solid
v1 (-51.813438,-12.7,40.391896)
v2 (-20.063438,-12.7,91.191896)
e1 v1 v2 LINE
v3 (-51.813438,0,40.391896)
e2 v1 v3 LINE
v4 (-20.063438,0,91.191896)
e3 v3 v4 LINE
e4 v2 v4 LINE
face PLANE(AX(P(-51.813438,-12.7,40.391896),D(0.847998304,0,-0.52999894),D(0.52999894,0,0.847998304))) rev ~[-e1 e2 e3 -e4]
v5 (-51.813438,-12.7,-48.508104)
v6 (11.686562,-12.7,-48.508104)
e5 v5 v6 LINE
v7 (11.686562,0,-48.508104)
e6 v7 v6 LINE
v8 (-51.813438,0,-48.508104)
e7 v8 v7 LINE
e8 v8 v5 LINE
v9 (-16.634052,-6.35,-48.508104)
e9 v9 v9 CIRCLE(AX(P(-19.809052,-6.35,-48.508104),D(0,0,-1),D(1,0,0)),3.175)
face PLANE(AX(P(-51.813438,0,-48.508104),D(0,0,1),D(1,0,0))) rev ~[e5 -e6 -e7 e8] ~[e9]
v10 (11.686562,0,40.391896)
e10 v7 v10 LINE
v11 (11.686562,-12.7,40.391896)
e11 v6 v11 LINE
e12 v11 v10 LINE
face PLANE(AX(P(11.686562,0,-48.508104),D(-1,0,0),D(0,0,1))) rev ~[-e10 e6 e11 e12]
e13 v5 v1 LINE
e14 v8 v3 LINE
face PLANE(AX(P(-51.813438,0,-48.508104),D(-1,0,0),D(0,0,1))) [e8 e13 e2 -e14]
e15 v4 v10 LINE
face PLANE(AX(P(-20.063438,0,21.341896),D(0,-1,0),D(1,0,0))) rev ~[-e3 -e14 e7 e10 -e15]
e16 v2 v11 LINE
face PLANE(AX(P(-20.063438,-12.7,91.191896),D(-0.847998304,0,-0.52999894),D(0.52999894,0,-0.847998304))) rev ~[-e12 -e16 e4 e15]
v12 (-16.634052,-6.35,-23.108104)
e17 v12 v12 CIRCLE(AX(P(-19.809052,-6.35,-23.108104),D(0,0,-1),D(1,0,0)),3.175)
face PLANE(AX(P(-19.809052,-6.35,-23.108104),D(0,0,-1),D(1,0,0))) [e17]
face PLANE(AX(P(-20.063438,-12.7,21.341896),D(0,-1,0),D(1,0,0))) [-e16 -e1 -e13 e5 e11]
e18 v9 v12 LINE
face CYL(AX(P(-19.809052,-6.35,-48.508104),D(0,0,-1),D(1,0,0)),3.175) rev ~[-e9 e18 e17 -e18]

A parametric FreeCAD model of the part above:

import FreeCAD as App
import Part
import Sketcher

V = App.Vector
Q = App.Units.Quantity


def add_polygon(sketch, points):
    """Adds a closed chain of lines whose ends are joined by coincident constraints."""
    first, n = sketch.GeometryCount, len(points)
    for a, b in zip(points, points[1:] + points[:1]):
        sketch.addGeometry(Part.LineSegment(App.Vector(*a, 0), App.Vector(*b, 0)), False)
    for i in range(n):
        sketch.addConstraint(Sketcher.Constraint("Coincident", first + i, 2, first + (i + 1) % n, 1))

doc = App.newDocument("Part")
body = doc.addObject("PartDesign::Body", "Body")

# Sketch on XZ plane
sketch1 = doc.addObject("Sketcher::SketchObject", "Sketch")
body.addObject(sketch1)
sketch1.AttachmentSupport = (doc.XZ_Plane, [""])
sketch1.MapMode = "FlatFace"
add_polygon(sketch1, [(-51.813438, 91.191896), (-51.813438, -48.508104), (11.686562, -48.508104), (11.686562, 91.191896)])  # lines 0-3
sketch1.addConstraint([
    Sketcher.Constraint("Vertical", 0),
    Sketcher.Constraint("Horizontal", 1),
    Sketcher.Constraint("Vertical", 2),
    Sketcher.Constraint("Horizontal", 3),
    Sketcher.Constraint("DistanceX", 1, 1, 1, 2, Q("2.5 in")),
    Sketcher.Constraint("DistanceY", 0, 2, 0, 1, Q("5.5 in")),
    Sketcher.Constraint("DistanceX", 0, 2, -1, 1, Q("51.813438 mm")),
    Sketcher.Constraint("DistanceY", 0, 2, -1, 1, Q("48.508104 mm")),
])
pad1 = doc.addObject("PartDesign::Pad", "Pad")
body.addObject(pad1)
pad1.Profile = sketch1
pad1.Length = Q("0.5 in")

# Sketch on XZ plane
sketch2 = doc.addObject("Sketcher::SketchObject", "Sketch001")
body.addObject(sketch2)
sketch2.AttachmentSupport = (doc.XZ_Plane, [""])
sketch2.MapMode = "FlatFace"
sketch2.AttachmentOffset = App.Placement(V(0, 0, 0.5 * 25.4), App.Rotation())
add_polygon(sketch2, [(-51.813438, 40.391896), (-20.063438, 91.191896), (-51.813438, 91.191896)])  # lines 0-2
add_polygon(sketch2, [(11.686562, 91.191896), (-20.063438, 91.191896), (11.686562, 40.391896)])  # lines 3-5
sketch2.addConstraint([
    Sketcher.Constraint("Horizontal", 1),
    Sketcher.Constraint("Vertical", 2),
    Sketcher.Constraint("Horizontal", 3),
    Sketcher.Constraint("Vertical", 5),
    Sketcher.Constraint("Coincident", 3, 2, 0, 2),
    Sketcher.Constraint("Horizontal", 2, 2, 4, 2),
    Sketcher.Constraint("Equal", 1, 3),
    Sketcher.Constraint("DistanceY", 2, 2, 2, 1, Q("2 in")),
    Sketcher.Constraint("DistanceX", 1, 2, 1, 1, Q("1.25 in")),
    Sketcher.Constraint("DistanceX", 0, 2, -1, 1, Q("20.063438 mm")),
    Sketcher.Constraint("DistanceY", -1, 1, 0, 2, Q("91.191896 mm")),
])
pocket1 = doc.addObject("PartDesign::Pocket", "Pocket")
body.addObject(pocket1)
pocket1.Profile = sketch2
pocket1.Length = Q("1 in")

# Sketch on XY plane
sketch3 = doc.addObject("Sketcher::SketchObject", "Sketch002")
body.addObject(sketch3)
sketch3.AttachmentSupport = (doc.XY_Plane, [""])
sketch3.MapMode = "FlatFace"
sketch3.AttachmentOffset = App.Placement(V(0, 0, -48.508104), App.Rotation())
sketch3.addGeometry(Part.Circle(V(-19.809052, -6.35, 0), V(0, 0, 1), 3.175), False)
sketch3.addConstraint([
    Sketcher.Constraint("Diameter", 0, Q("0.25 in")),
    Sketcher.Constraint("DistanceY", 0, 3, -1, 1, Q("0.25 in")),
    Sketcher.Constraint("DistanceX", 0, 3, -1, 1, Q("19.809052 mm")),
])
pocket2 = doc.addObject("PartDesign::Pocket", "Pocket001")
body.addObject(pocket2)
pocket2.Profile = sketch3
pocket2.Length = Q("1 in")
pocket2.Reversed = True

doc.recompute()
